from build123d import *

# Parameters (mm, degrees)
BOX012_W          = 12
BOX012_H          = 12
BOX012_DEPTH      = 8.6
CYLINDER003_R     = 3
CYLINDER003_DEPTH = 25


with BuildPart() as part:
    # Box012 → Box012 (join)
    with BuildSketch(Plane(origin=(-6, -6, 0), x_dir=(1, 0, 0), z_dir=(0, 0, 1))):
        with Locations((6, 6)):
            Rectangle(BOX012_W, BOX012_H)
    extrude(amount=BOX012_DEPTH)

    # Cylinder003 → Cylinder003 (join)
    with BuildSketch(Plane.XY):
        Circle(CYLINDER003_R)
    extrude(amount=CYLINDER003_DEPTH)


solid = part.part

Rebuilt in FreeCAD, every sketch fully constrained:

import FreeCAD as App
import Part
import Sketcher
from FreeCAD import Vector


def add_polygon(sketch, points):
    """Adds a closed chain of lines whose ends are joined by coincident constraints."""
    first, n = sketch.GeometryCount, len(points)
    for a, b in zip(points, points[1:] + points[:1]):
        sketch.addGeometry(Part.LineSegment(App.Vector(*a, 0), App.Vector(*b, 0)), False)
    for i in range(n):
        sketch.addConstraint(Sketcher.Constraint("Coincident", first + i, 2, first + (i + 1) % n, 1))

doc = App.newDocument("Part")
body = doc.addObject("PartDesign::Body", "Body")

# Sketch on XY plane
sketch1 = doc.addObject("Sketcher::SketchObject", "Sketch")
body.addObject(sketch1)
sketch1.AttachmentSupport = (doc.XY_Plane, [""])
sketch1.MapMode = "FlatFace"
add_polygon(sketch1, [(-6, 6), (-6, -6), (6, -6), (6, 6)])  # lines 0-3
sketch1.addConstraint([
    Sketcher.Constraint("Vertical", 0),
    Sketcher.Constraint("Horizontal", 1),
    Sketcher.Constraint("Vertical", 2),
    Sketcher.Constraint("Horizontal", 3),
    Sketcher.Constraint("Symmetric", 0, 2, 2, 2, -1, 1),
    Sketcher.Constraint("Equal", 3, 0),
    Sketcher.Constraint("DistanceX", 1, 1, 1, 2, 12.0),
])
pad1 = doc.addObject("PartDesign::Pad", "Pad")
body.addObject(pad1)
pad1.Profile = sketch1
pad1.Length = 8.6

# Sketch on XY plane
sketch2 = doc.addObject("Sketcher::SketchObject", "Sketch001")
body.addObject(sketch2)
sketch2.AttachmentSupport = (doc.XY_Plane, [""])
sketch2.MapMode = "FlatFace"
sketch2.addGeometry(Part.Circle(Vector(0, 0, 0), Vector(0, 0, 1), 3), False)
sketch2.addConstraint([
    Sketcher.Constraint("Coincident", 0, 3, -1, 1),
    Sketcher.Constraint("Diameter", 0, 6.0),
])
pad2 = doc.addObject("PartDesign::Pad", "Pad001")
body.addObject(pad2)
pad2.Profile = sketch2
pad2.Length = 25

doc.recompute()
